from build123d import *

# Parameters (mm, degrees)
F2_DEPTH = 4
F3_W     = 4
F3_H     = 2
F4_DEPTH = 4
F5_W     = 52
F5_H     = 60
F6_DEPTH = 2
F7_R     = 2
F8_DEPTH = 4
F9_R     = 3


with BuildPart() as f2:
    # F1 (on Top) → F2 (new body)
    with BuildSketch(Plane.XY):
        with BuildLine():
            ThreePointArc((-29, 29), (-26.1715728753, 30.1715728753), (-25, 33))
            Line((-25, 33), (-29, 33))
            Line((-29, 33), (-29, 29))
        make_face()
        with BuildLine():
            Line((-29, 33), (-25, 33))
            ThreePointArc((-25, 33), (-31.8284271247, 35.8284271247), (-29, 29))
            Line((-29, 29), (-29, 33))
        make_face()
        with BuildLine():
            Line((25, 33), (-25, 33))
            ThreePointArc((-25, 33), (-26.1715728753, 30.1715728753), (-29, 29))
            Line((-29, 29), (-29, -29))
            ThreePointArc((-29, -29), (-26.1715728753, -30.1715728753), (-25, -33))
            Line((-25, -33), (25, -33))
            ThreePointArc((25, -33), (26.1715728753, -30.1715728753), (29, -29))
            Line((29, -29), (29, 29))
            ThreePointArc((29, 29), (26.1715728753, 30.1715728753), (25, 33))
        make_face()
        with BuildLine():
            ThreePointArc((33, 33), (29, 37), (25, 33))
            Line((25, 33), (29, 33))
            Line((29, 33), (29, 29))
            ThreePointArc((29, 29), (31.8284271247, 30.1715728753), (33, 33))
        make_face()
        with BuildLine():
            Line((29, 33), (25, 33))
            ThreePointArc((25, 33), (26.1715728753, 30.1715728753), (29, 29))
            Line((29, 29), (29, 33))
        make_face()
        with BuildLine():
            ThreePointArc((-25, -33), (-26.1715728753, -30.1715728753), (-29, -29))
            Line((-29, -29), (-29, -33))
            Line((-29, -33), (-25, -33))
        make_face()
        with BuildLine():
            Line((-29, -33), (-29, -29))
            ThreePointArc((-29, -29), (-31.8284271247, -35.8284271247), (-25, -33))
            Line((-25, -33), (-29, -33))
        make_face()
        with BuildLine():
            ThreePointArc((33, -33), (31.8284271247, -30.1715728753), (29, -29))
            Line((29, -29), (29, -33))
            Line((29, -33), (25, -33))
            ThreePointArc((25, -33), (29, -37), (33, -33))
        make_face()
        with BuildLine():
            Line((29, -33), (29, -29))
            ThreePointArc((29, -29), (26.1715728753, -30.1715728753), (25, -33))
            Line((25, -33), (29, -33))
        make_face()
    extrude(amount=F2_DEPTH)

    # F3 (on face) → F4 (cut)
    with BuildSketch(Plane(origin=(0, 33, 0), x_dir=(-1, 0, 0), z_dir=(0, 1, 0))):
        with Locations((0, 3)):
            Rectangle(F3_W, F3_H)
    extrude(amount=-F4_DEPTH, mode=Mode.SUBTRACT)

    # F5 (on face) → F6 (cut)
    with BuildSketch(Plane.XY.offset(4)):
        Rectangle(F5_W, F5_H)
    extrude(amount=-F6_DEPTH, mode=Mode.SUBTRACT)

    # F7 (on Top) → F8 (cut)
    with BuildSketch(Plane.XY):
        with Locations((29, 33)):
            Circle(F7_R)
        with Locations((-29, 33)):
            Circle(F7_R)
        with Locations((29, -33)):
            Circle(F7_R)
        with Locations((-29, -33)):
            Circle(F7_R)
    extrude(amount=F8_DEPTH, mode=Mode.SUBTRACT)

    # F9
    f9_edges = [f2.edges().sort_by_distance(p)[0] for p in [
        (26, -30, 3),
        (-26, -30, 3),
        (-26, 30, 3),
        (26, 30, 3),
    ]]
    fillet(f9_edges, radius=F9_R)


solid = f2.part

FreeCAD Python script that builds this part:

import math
import FreeCAD as App
import Part
import Sketcher
from FreeCAD import Vector


def edges_at(feature, points):
    """Names of the edges that pass closest to the given points."""
    edges = feature.Shape.Edges
    near = lambda p: min(range(len(edges)), key=lambda i: edges[i].distToShape(Part.Vertex(*p))[0])
    return sorted({f"Edge{near(p) + 1}" for p in points})

doc = App.newDocument("Part")
body = doc.addObject("PartDesign::Body", "Body")

# Sketch on XY plane
sketch1 = body.newObject("Sketcher::SketchObject", "Sketch")
sketch1.AttachmentSupport = (doc.getObject("XY_Plane"), [""])
sketch1.MapMode = "FlatFace"
sketch1.addGeometry([
    Part.ArcOfCircle(Part.Circle(Vector(-29, 33, 0), Vector(0, 0, 1), 4), math.radians(0), math.radians(270)),  # 0
    Part.LineSegment(Vector(-29, 29, 0), Vector(-29, -29, 0)),  # 1
    Part.ArcOfCircle(Part.Circle(Vector(-29, -33, 0), Vector(0, 0, 1), 4), math.radians(90), math.radians(360)),  # 2
    Part.LineSegment(Vector(-25, -33, 0), Vector(25, -33, 0)),  # 3
    Part.ArcOfCircle(Part.Circle(Vector(29, -33, 0), Vector(0, 0, 1), 4), math.radians(180), math.radians(360)),  # 4
    Part.ArcOfCircle(Part.Circle(Vector(29, -33, 0), Vector(0, 0, 1), 4), math.radians(0), math.radians(90)),  # 5
    Part.LineSegment(Vector(29, -29, 0), Vector(29, 29, 0)),  # 6
    Part.ArcOfCircle(Part.Circle(Vector(29, 33, 0), Vector(0, 0, 1), 4), math.radians(-90), math.radians(0)),  # 7
    Part.ArcOfCircle(Part.Circle(Vector(29, 33, 0), Vector(0, 0, 1), 4), math.radians(0), math.radians(180)),  # 8
    Part.LineSegment(Vector(25, 33, 0), Vector(-25, 33, 0)),  # 9
], False)
sketch1.addConstraint([
    Sketcher.Constraint("Coincident", 0, 2, 1, 1),
    Sketcher.Constraint("Coincident", 1, 2, 2, 1),
    Sketcher.Constraint("Coincident", 2, 2, 3, 1),
    Sketcher.Constraint("Coincident", 3, 2, 4, 1),
    Sketcher.Constraint("Tangent", 4, 2, 5, 1),
    Sketcher.Constraint("Coincident", 5, 2, 6, 1),
    Sketcher.Constraint("Coincident", 6, 2, 7, 1),
    Sketcher.Constraint("Tangent", 7, 2, 8, 1),
    Sketcher.Constraint("Coincident", 8, 2, 9, 1),
    Sketcher.Constraint("Coincident", 9, 2, 0, 1),
    Sketcher.Constraint("Vertical", 1),
    Sketcher.Constraint("Horizontal", 3),
    Sketcher.Constraint("Vertical", 6),
    Sketcher.Constraint("Horizontal", 9),
    Sketcher.Constraint("Equal", 0, 2),
    Sketcher.Constraint("Equal", 2, 4),
    Sketcher.Constraint("Equal", 4, 5),
    Sketcher.Constraint("Equal", 5, 7),
    Sketcher.Constraint("Equal", 7, 8),
    Sketcher.Constraint("Symmetric", 0, 3, 4, 3, -1, 1),
    Sketcher.Constraint("Symmetric", 2, 3, 7, 3, -1, 1),
    Sketcher.Constraint("Symmetric", 2, 3, 4, 3, -2),
    Sketcher.Constraint("Horizontal", 5, 3, 2, 2),
    Sketcher.Constraint("Horizontal", 3, 2, 4, 2),
    Sketcher.Constraint("Horizontal", 8, 3, 7, 2),
    Sketcher.Constraint("Horizontal", 7, 2, 8, 2),
    Sketcher.Constraint("Vertical", 2, 3, 0, 2),
    Sketcher.Constraint("Vertical", 8, 3, 5, 2),
    Sketcher.Constraint("Radius", 0, 4.0),
    Sketcher.Constraint("DistanceX", 3, 1, 3, 2, 50.0),
    Sketcher.Constraint("DistanceY", 1, 2, 1, 1, 58.0),
])
pad1 = body.newObject("PartDesign::Pad", "Pad")
pad1.Profile = sketch1
pad1.Length = 4

# Sketch on XZ plane
sketch2 = body.newObject("Sketcher::SketchObject", "Sketch001")
sketch2.AttachmentSupport = (doc.getObject("XZ_Plane"), [""])
sketch2.MapMode = "FlatFace"
sketch2.AttachmentOffset = App.Placement(Vector(0, 0, -33), App.Rotation())
sketch2.addGeometry([
    Part.LineSegment(Vector(2, 4, 0), Vector(2, 2, 0)),
    Part.LineSegment(Vector(2, 2, 0), Vector(-2, 2, 0)),
    Part.LineSegment(Vector(-2, 2, 0), Vector(-2, 4, 0)),
    Part.LineSegment(Vector(-2, 4, 0), Vector(2, 4, 0)),
], False)
sketch2.addConstraint([
    Sketcher.Constraint("Coincident", 0, 2, 1, 1),
    Sketcher.Constraint("Coincident", 1, 2, 2, 1),
    Sketcher.Constraint("Coincident", 2, 2, 3, 1),
    Sketcher.Constraint("Coincident", 3, 2, 0, 1),
    Sketcher.Constraint("Vertical", 0),
    Sketcher.Constraint("Horizontal", 1),
    Sketcher.Constraint("Vertical", 2),
    Sketcher.Constraint("Horizontal", 3),
    Sketcher.Constraint("DistanceX", 1, 2, 1, 1, 4.0),
    Sketcher.Constraint("DistanceY", 0, 2, 0, 1, 2.0),
    Sketcher.Constraint("DistanceX", -1, 1, 0, 2, 2.0),
    Sketcher.Constraint("DistanceY", -1, 1, 0, 2, 2.0),
])
pocket1 = body.newObject("PartDesign::Pocket", "Pocket")
pocket1.Profile = sketch2
pocket1.Length = 4
pocket1.Reversed = True

# Sketch on XY plane
sketch3 = body.newObject("Sketcher::SketchObject", "Sketch002")
sketch3.AttachmentSupport = (doc.getObject("XY_Plane"), [""])
sketch3.MapMode = "FlatFace"
sketch3.AttachmentOffset = App.Placement(Vector(0, 0, 4), App.Rotation())
sketch3.addGeometry([
    Part.LineSegment(Vector(-26, 30, 0), Vector(-26, -30, 0)),
    Part.LineSegment(Vector(-26, -30, 0), Vector(26, -30, 0)),
    Part.LineSegment(Vector(26, -30, 0), Vector(26, 30, 0)),
    Part.LineSegment(Vector(26, 30, 0), Vector(-26, 30, 0)),
], False)
sketch3.addConstraint([
    Sketcher.Constraint("Coincident", 0, 2, 1, 1),
    Sketcher.Constraint("Coincident", 1, 2, 2, 1),
    Sketcher.Constraint("Coincident", 2, 2, 3, 1),
    Sketcher.Constraint("Coincident", 3, 2, 0, 1),
    Sketcher.Constraint("Vertical", 0),
    Sketcher.Constraint("Horizontal", 1),
    Sketcher.Constraint("Vertical", 2),
    Sketcher.Constraint("Horizontal", 3),
    Sketcher.Constraint("Symmetric", 0, 2, 2, 2, -1, 1),
    Sketcher.Constraint("DistanceX", 1, 1, 1, 2, 52.0),
    Sketcher.Constraint("DistanceY", 0, 2, 0, 1, 60.0),
])
pocket2 = body.newObject("PartDesign::Pocket", "Pocket001")
pocket2.Profile = sketch3
pocket2.Length = 2

# Sketch on XY plane
sketch4 = body.newObject("Sketcher::SketchObject", "Sketch003")
sketch4.AttachmentSupport = (doc.getObject("XY_Plane"), [""])
sketch4.MapMode = "FlatFace"
sketch4.addGeometry([
    Part.Circle(Vector(29, 33, 0), Vector(0, 0, 1), 2),
    Part.Circle(Vector(-29, 33, 0), Vector(0, 0, 1), 2),
    Part.Circle(Vector(29, -33, 0), Vector(0, 0, 1), 2),
    Part.Circle(Vector(-29, -33, 0), Vector(0, 0, 1), 2),
], False)
sketch4.addConstraint([
    Sketcher.Constraint("Equal", 0, 1),
    Sketcher.Constraint("Equal", 1, 2),
    Sketcher.Constraint("Equal", 2, 3),
    Sketcher.Constraint("Symmetric", 1, 3, 2, 3, -1, 1),
    Sketcher.Constraint("Symmetric", 0, 3, 3, 3, -1, 1),
    Sketcher.Constraint("Symmetric", 0, 3, 1, 3, -2),
    Sketcher.Constraint("Diameter", 0, 4.0),
    Sketcher.Constraint("DistanceX", -1, 1, 0, 3, 29.0),
    Sketcher.Constraint("DistanceY", -1, 1, 0, 3, 33.0),
])
pocket3 = body.newObject("PartDesign::Pocket", "Pocket002")
pocket3.Profile = sketch4
pocket3.Length = 4
pocket3.Reversed = True
doc.recompute()

fillet = body.newObject("PartDesign::Fillet", "Fillet")
fillet.Base = (pocket3, edges_at(pocket3, [
    (26, -30, 3),
    (-26, -30, 3),
    (-26, 30, 3),
    (26, 30, 3),
]))
fillet.Radius = 3

doc.recompute()
